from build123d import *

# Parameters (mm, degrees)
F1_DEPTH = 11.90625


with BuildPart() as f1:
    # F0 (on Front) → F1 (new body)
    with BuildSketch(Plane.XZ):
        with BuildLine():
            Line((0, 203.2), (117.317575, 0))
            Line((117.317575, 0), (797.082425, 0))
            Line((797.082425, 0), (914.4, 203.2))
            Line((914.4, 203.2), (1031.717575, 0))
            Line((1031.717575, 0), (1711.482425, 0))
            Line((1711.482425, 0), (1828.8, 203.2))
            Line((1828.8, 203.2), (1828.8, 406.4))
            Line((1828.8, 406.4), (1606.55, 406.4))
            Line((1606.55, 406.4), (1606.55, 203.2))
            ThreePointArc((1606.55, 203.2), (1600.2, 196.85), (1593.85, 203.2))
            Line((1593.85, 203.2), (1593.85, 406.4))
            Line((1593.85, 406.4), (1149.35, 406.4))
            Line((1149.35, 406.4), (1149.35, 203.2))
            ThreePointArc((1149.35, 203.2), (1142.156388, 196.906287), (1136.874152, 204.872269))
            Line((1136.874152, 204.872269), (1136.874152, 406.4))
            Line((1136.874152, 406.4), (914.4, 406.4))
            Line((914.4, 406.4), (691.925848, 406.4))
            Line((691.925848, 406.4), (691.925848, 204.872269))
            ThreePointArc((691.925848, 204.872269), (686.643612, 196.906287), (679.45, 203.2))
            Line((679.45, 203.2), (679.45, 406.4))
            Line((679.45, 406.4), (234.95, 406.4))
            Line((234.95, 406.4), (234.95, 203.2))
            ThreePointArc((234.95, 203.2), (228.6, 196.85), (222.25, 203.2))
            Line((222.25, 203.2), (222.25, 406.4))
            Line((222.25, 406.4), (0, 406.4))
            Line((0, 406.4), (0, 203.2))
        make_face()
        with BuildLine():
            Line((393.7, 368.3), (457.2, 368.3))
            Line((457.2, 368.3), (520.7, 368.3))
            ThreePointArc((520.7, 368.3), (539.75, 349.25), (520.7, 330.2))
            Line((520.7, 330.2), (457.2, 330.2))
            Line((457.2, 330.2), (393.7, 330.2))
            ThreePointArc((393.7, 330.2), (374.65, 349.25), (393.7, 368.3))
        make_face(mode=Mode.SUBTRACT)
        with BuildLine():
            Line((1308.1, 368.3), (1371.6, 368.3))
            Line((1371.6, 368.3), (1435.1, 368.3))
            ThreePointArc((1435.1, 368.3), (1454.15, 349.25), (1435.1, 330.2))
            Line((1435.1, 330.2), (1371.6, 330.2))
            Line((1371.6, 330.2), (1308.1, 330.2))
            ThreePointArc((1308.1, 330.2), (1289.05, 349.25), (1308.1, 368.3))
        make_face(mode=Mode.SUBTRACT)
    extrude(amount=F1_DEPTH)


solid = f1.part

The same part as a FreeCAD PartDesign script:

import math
import FreeCAD as App
import Part
import Sketcher
Q = App.Units.Quantity

doc = App.newDocument("Part")
body = doc.addObject("PartDesign::Body", "Body")

# Sketch on XZ plane
sketch1 = body.newObject("Sketcher::SketchObject", "Sketch")
sketch1.AttachmentSupport = (doc.getObject("XZ_Plane"), [""])
sketch1.MapMode = "FlatFace"
sketch1.addGeometry(Part.LineSegment(App.Vector(0, 203, 0), App.Vector(117, 0, 0)), False)
sketch1.addGeometry(Part.LineSegment(App.Vector(117, 0, 0), App.Vector(797, 0, 0)), False)
sketch1.addGeometry(Part.LineSegment(App.Vector(797, 0, 0), App.Vector(914, 203, 0)), False)
sketch1.addGeometry(Part.LineSegment(App.Vector(914, 203, 0), App.Vector(1032, 0, 0)), False)
sketch1.addGeometry(Part.LineSegment(App.Vector(1032, 0, 0), App.Vector(1711, 0, 0)), False)
sketch1.addGeometry(Part.LineSegment(App.Vector(1711, 0, 0), App.Vector(1829, 203, 0)), False)
sketch1.addGeometry(Part.LineSegment(App.Vector(1829, 203, 0), App.Vector(1829, 406, 0)), False)
sketch1.addGeometry(Part.LineSegment(App.Vector(1829, 406, 0), App.Vector(1607, 406, 0)), False)
sketch1.addGeometry(Part.LineSegment(App.Vector(1607, 406, 0), App.Vector(1607, 203, 0)), False)
sketch1.addGeometry(Part.ArcOfCircle(Part.Circle(App.Vector(1600, 203, 0), App.Vector(0, 0, 1), 6), math.radians(180), math.radians(360)), False)
sketch1.addGeometry(Part.LineSegment(App.Vector(1594, 203, 0), App.Vector(1594, 406, 0)), False)
sketch1.addGeometry(Part.LineSegment(App.Vector(1594, 406, 0), App.Vector(1149, 406, 0)), False)
sketch1.addGeometry(Part.LineSegment(App.Vector(1149, 406, 0), App.Vector(1149, 203, 0)), False)
sketch1.addGeometry(Part.ArcOfCircle(Part.Circle(App.Vector(1143, 203, 0), App.Vector(0, 0, 1), 6), math.radians(165), math.radians(360)), False)
sketch1.addGeometry(Part.LineSegment(App.Vector(1137, 205, 0), App.Vector(1137, 406, 0)), False)
sketch1.addGeometry(Part.LineSegment(App.Vector(1137, 406, 0), App.Vector(692, 406, 0)), False)
sketch1.addGeometry(Part.LineSegment(App.Vector(692, 406, 0), App.Vector(692, 205, 0)), False)
sketch1.addGeometry(Part.ArcOfCircle(Part.Circle(App.Vector(686, 203, 0), App.Vector(0, 0, 1), 6), math.radians(180), math.radians(375)), False)
sketch1.addGeometry(Part.LineSegment(App.Vector(679, 203, 0), App.Vector(679, 406, 0)), False)
sketch1.addGeometry(Part.LineSegment(App.Vector(679, 406, 0), App.Vector(235, 406, 0)), False)
sketch1.addGeometry(Part.LineSegment(App.Vector(235, 406, 0), App.Vector(235, 203, 0)), False)
sketch1.addGeometry(Part.ArcOfCircle(Part.Circle(App.Vector(229, 203, 0), App.Vector(0, 0, 1), 6), math.radians(180), math.radians(360)), False)
sketch1.addGeometry(Part.LineSegment(App.Vector(222, 203, 0), App.Vector(222, 406, 0)), False)
sketch1.addGeometry(Part.LineSegment(App.Vector(222, 406, 0), App.Vector(0, 406, 0)), False)
sketch1.addGeometry(Part.LineSegment(App.Vector(0, 406, 0), App.Vector(0, 203, 0)), False)
sketch1.addGeometry(Part.ArcOfCircle(Part.Circle(App.Vector(394, 349, 0), App.Vector(0, 0, 1), 19), math.radians(90), math.radians(270)), False)
sketch1.addGeometry(Part.LineSegment(App.Vector(394, 368, 0), App.Vector(521, 368, 0)), False)
sketch1.addGeometry(Part.ArcOfCircle(Part.Circle(App.Vector(521, 349, 0), App.Vector(0, 0, 1), 19), math.radians(-90), math.radians(90)), False)
sketch1.addGeometry(Part.LineSegment(App.Vector(521, 330, 0), App.Vector(394, 330, 0)), False)
sketch1.addGeometry(Part.ArcOfCircle(Part.Circle(App.Vector(1308, 349, 0), App.Vector(0, 0, 1), 19), math.radians(90), math.radians(270)), False)
sketch1.addGeometry(Part.LineSegment(App.Vector(1308, 368, 0), App.Vector(1435, 368, 0)), False)
sketch1.addGeometry(Part.ArcOfCircle(Part.Circle(App.Vector(1435, 349, 0), App.Vector(0, 0, 1), 19), math.radians(-90), math.radians(90)), False)
sketch1.addGeometry(Part.LineSegment(App.Vector(1435, 330, 0), App.Vector(1308, 330, 0)), False)
sketch1.addConstraint(Sketcher.Constraint("Coincident", 0, 2, 1, 1))
sketch1.addConstraint(Sketcher.Constraint("Coincident", 1, 2, 2, 1))
sketch1.addConstraint(Sketcher.Constraint("Coincident", 2, 2, 3, 1))
sketch1.addConstraint(Sketcher.Constraint("Coincident", 3, 2, 4, 1))
sketch1.addConstraint(Sketcher.Constraint("Coincident", 4, 2, 5, 1))
sketch1.addConstraint(Sketcher.Constraint("Coincident", 5, 2, 6, 1))
sketch1.addConstraint(Sketcher.Constraint("Coincident", 6, 2, 7, 1))
sketch1.addConstraint(Sketcher.Constraint("Coincident", 7, 2, 8, 1))
sketch1.addConstraint(Sketcher.Constraint("Tangent", 8, 2, 9, 2))
sketch1.addConstraint(Sketcher.Constraint("Tangent", 9, 1, 10, 1))
sketch1.addConstraint(Sketcher.Constraint("Coincident", 10, 2, 11, 1))
sketch1.addConstraint(Sketcher.Constraint("Coincident", 11, 2, 12, 1))
sketch1.addConstraint(Sketcher.Constraint("Tangent", 12, 2, 13, 2))
sketch1.addConstraint(Sketcher.Constraint("Coincident", 13, 1, 14, 1))
sketch1.addConstraint(Sketcher.Constraint("Coincident", 14, 2, 15, 1))
sketch1.addConstraint(Sketcher.Constraint("Coincident", 15, 2, 16, 1))
sketch1.addConstraint(Sketcher.Constraint("Coincident", 16, 2, 17, 2))
sketch1.addConstraint(Sketcher.Constraint("Tangent", 17, 1, 18, 1))
sketch1.addConstraint(Sketcher.Constraint("Coincident", 18, 2, 19, 1))
sketch1.addConstraint(Sketcher.Constraint("Coincident", 19, 2, 20, 1))
sketch1.addConstraint(Sketcher.Constraint("Tangent", 20, 2, 21, 2))
sketch1.addConstraint(Sketcher.Constraint("Tangent", 21, 1, 22, 1))
sketch1.addConstraint(Sketcher.Constraint("Coincident", 22, 2, 23, 1))
sketch1.addConstraint(Sketcher.Constraint("Coincident", 23, 2, 24, 1))
sketch1.addConstraint(Sketcher.Constraint("Coincident", 24, 2, 0, 1))
sketch1.addConstraint(Sketcher.Constraint("Tangent", 25, 1, 26, 1))
sketch1.addConstraint(Sketcher.Constraint("Tangent", 26, 2, 27, 2))
sketch1.addConstraint(Sketcher.Constraint("Tangent", 27, 1, 28, 1))
sketch1.addConstraint(Sketcher.Constraint("Tangent", 28, 2, 25, 2))
sketch1.addConstraint(Sketcher.Constraint("Tangent", 29, 1, 30, 1))
sketch1.addConstraint(Sketcher.Constraint("Tangent", 30, 2, 31, 2))
sketch1.addConstraint(Sketcher.Constraint("Tangent", 31, 1, 32, 1))
sketch1.addConstraint(Sketcher.Constraint("Tangent", 32, 2, 29, 2))
sketch1.addConstraint(Sketcher.Constraint("Horizontal", 1))
sketch1.addConstraint(Sketcher.Constraint("Horizontal", 4))
sketch1.addConstraint(Sketcher.Constraint("Vertical", 6))
sketch1.addConstraint(Sketcher.Constraint("Horizontal", 7))
sketch1.addConstraint(Sketcher.Constraint("Vertical", 8))
sketch1.addConstraint(Sketcher.Constraint("Vertical", 10))
sketch1.addConstraint(Sketcher.Constraint("Horizontal", 11))
sketch1.addConstraint(Sketcher.Constraint("Vertical", 12))
sketch1.addConstraint(Sketcher.Constraint("Vertical", 14))
sketch1.addConstraint(Sketcher.Constraint("Horizontal", 15))
sketch1.addConstraint(Sketcher.Constraint("Vertical", 16))
sketch1.addConstraint(Sketcher.Constraint("Vertical", 18))
sketch1.addConstraint(Sketcher.Constraint("Horizontal", 19))
sketch1.addConstraint(Sketcher.Constraint("Vertical", 20))
sketch1.addConstraint(Sketcher.Constraint("Vertical", 22))
sketch1.addConstraint(Sketcher.Constraint("Horizontal", 23))
sketch1.addConstraint(Sketcher.Constraint("Vertical", 24))
sketch1.addConstraint(Sketcher.Constraint("Horizontal", 26))
sketch1.addConstraint(Sketcher.Constraint("Horizontal", 28))
sketch1.addConstraint(Sketcher.Constraint("Horizontal", 30))
sketch1.addConstraint(Sketcher.Constraint("Horizontal", 32))
sketch1.addConstraint(Sketcher.Constraint("Equal", 9, 13))
sketch1.addConstraint(Sketcher.Constraint("Equal", 13, 17))
sketch1.addConstraint(Sketcher.Constraint("Equal", 17, 21))
sketch1.addConstraint(Sketcher.Constraint("Equal", 27, 29))
sketch1.addConstraint(Sketcher.Constraint("PointOnObject", 0, 2, -1))
sketch1.addConstraint(Sketcher.Constraint("PointOnObject", 3, 2, -1))
sketch1.addConstraint(Sketcher.Constraint("PointOnObject", 23, 2, -2))
sketch1.addConstraint(Sketcher.Constraint("Parallel", 0, 3))
sketch1.addConstraint(Sketcher.Constraint("Parallel", 2, 5))
sketch1.addConstraint(Sketcher.Constraint("Horizontal", 9, 3, 13, 3))
sketch1.addConstraint(Sketcher.Constraint("Horizontal", 13, 3, 17, 3))
sketch1.addConstraint(Sketcher.Constraint("Horizontal", 17, 3, 21, 3))
sketch1.addConstraint(Sketcher.Constraint("Horizontal", 27, 3, 29, 3))
sketch1.addConstraint(Sketcher.Constraint("Horizontal", 21, 3, 2, 2))
sketch1.addConstraint(Sketcher.Constraint("Horizontal", 2, 2, 5, 2))
sketch1.addConstraint(Sketcher.Constraint("Horizontal", 7, 2, 10, 2))
sketch1.addConstraint(Sketcher.Constraint("Horizontal", 11, 2, 14, 2))
sketch1.addConstraint(Sketcher.Constraint("Horizontal", 13, 1, 16, 2))
sketch1.addConstraint(Sketcher.Constraint("Horizontal", 15, 2, 18, 2))
sketch1.addConstraint(Sketcher.Constraint("Horizontal", 19, 2, 22, 2))
sketch1.addConstraint(Sketcher.Constraint("Horizontal", 21, 1, 24, 2))
sketch1.addConstraint(Sketcher.Constraint("Equal", 1, 4))
sketch1.addConstraint(Sketcher.Constraint("Equal", 11, 19))
sketch1.addConstraint(Sketcher.Constraint("Equal", 7, 23))
sketch1.addConstraint(Sketcher.Constraint("Equal", 28, 30))
sketch1.addConstraint(Sketcher.Constraint("Equal", 0, 2))
sketch1.addConstraint(Sketcher.Constraint("DistanceX", 26, 1, 26, 2, Q("5 in")))
sketch1.addConstraint(Sketcher.Constraint("DistanceY", 6, 1, 6, 2, Q("8 in")))
sketch1.addConstraint(Sketcher.Constraint("Radius", 9, Q("0.25 in")))
sketch1.addConstraint(Sketcher.Constraint("Radius", 25, Q("0.75 in")))
sketch1.addConstraint(Sketcher.Constraint("DistanceX", 11, 2, 11, 1, Q("17.5 in")))
sketch1.addConstraint(Sketcher.Constraint("DistanceX", -1, 1, 9, 3, Q("63 in")))
sketch1.addConstraint(Sketcher.Constraint("DistanceY", -1, 1, 9, 3, Q("8 in")))
sketch1.addConstraint(Sketcher.Constraint("DistanceX", -1, 1, 17, 3, Q("27 in")))
sketch1.addConstraint(Sketcher.Constraint("DistanceY", -1, 1, 27, 1, Q("13 in")))
sketch1.addConstraint(Sketcher.Constraint("Angle", 0, Q("-60 deg")))
sketch1.addConstraint(Sketcher.Constraint("DistanceX", 27, 3, 29, 3, Q("31 in")))
sketch1.addConstraint(Sketcher.Constraint("DistanceX", -1, 1, 25, 3, Q("15.5 in")))
sketch1.addConstraint(Sketcher.Constraint("DistanceY", 14, 1, 14, 2, Q("201.527731 mm")))
pad1 = body.newObject("PartDesign::Pad", "Pad")
pad1.Profile = sketch1
pad1.Length = Q("0.46875 in")

doc.recompute()
